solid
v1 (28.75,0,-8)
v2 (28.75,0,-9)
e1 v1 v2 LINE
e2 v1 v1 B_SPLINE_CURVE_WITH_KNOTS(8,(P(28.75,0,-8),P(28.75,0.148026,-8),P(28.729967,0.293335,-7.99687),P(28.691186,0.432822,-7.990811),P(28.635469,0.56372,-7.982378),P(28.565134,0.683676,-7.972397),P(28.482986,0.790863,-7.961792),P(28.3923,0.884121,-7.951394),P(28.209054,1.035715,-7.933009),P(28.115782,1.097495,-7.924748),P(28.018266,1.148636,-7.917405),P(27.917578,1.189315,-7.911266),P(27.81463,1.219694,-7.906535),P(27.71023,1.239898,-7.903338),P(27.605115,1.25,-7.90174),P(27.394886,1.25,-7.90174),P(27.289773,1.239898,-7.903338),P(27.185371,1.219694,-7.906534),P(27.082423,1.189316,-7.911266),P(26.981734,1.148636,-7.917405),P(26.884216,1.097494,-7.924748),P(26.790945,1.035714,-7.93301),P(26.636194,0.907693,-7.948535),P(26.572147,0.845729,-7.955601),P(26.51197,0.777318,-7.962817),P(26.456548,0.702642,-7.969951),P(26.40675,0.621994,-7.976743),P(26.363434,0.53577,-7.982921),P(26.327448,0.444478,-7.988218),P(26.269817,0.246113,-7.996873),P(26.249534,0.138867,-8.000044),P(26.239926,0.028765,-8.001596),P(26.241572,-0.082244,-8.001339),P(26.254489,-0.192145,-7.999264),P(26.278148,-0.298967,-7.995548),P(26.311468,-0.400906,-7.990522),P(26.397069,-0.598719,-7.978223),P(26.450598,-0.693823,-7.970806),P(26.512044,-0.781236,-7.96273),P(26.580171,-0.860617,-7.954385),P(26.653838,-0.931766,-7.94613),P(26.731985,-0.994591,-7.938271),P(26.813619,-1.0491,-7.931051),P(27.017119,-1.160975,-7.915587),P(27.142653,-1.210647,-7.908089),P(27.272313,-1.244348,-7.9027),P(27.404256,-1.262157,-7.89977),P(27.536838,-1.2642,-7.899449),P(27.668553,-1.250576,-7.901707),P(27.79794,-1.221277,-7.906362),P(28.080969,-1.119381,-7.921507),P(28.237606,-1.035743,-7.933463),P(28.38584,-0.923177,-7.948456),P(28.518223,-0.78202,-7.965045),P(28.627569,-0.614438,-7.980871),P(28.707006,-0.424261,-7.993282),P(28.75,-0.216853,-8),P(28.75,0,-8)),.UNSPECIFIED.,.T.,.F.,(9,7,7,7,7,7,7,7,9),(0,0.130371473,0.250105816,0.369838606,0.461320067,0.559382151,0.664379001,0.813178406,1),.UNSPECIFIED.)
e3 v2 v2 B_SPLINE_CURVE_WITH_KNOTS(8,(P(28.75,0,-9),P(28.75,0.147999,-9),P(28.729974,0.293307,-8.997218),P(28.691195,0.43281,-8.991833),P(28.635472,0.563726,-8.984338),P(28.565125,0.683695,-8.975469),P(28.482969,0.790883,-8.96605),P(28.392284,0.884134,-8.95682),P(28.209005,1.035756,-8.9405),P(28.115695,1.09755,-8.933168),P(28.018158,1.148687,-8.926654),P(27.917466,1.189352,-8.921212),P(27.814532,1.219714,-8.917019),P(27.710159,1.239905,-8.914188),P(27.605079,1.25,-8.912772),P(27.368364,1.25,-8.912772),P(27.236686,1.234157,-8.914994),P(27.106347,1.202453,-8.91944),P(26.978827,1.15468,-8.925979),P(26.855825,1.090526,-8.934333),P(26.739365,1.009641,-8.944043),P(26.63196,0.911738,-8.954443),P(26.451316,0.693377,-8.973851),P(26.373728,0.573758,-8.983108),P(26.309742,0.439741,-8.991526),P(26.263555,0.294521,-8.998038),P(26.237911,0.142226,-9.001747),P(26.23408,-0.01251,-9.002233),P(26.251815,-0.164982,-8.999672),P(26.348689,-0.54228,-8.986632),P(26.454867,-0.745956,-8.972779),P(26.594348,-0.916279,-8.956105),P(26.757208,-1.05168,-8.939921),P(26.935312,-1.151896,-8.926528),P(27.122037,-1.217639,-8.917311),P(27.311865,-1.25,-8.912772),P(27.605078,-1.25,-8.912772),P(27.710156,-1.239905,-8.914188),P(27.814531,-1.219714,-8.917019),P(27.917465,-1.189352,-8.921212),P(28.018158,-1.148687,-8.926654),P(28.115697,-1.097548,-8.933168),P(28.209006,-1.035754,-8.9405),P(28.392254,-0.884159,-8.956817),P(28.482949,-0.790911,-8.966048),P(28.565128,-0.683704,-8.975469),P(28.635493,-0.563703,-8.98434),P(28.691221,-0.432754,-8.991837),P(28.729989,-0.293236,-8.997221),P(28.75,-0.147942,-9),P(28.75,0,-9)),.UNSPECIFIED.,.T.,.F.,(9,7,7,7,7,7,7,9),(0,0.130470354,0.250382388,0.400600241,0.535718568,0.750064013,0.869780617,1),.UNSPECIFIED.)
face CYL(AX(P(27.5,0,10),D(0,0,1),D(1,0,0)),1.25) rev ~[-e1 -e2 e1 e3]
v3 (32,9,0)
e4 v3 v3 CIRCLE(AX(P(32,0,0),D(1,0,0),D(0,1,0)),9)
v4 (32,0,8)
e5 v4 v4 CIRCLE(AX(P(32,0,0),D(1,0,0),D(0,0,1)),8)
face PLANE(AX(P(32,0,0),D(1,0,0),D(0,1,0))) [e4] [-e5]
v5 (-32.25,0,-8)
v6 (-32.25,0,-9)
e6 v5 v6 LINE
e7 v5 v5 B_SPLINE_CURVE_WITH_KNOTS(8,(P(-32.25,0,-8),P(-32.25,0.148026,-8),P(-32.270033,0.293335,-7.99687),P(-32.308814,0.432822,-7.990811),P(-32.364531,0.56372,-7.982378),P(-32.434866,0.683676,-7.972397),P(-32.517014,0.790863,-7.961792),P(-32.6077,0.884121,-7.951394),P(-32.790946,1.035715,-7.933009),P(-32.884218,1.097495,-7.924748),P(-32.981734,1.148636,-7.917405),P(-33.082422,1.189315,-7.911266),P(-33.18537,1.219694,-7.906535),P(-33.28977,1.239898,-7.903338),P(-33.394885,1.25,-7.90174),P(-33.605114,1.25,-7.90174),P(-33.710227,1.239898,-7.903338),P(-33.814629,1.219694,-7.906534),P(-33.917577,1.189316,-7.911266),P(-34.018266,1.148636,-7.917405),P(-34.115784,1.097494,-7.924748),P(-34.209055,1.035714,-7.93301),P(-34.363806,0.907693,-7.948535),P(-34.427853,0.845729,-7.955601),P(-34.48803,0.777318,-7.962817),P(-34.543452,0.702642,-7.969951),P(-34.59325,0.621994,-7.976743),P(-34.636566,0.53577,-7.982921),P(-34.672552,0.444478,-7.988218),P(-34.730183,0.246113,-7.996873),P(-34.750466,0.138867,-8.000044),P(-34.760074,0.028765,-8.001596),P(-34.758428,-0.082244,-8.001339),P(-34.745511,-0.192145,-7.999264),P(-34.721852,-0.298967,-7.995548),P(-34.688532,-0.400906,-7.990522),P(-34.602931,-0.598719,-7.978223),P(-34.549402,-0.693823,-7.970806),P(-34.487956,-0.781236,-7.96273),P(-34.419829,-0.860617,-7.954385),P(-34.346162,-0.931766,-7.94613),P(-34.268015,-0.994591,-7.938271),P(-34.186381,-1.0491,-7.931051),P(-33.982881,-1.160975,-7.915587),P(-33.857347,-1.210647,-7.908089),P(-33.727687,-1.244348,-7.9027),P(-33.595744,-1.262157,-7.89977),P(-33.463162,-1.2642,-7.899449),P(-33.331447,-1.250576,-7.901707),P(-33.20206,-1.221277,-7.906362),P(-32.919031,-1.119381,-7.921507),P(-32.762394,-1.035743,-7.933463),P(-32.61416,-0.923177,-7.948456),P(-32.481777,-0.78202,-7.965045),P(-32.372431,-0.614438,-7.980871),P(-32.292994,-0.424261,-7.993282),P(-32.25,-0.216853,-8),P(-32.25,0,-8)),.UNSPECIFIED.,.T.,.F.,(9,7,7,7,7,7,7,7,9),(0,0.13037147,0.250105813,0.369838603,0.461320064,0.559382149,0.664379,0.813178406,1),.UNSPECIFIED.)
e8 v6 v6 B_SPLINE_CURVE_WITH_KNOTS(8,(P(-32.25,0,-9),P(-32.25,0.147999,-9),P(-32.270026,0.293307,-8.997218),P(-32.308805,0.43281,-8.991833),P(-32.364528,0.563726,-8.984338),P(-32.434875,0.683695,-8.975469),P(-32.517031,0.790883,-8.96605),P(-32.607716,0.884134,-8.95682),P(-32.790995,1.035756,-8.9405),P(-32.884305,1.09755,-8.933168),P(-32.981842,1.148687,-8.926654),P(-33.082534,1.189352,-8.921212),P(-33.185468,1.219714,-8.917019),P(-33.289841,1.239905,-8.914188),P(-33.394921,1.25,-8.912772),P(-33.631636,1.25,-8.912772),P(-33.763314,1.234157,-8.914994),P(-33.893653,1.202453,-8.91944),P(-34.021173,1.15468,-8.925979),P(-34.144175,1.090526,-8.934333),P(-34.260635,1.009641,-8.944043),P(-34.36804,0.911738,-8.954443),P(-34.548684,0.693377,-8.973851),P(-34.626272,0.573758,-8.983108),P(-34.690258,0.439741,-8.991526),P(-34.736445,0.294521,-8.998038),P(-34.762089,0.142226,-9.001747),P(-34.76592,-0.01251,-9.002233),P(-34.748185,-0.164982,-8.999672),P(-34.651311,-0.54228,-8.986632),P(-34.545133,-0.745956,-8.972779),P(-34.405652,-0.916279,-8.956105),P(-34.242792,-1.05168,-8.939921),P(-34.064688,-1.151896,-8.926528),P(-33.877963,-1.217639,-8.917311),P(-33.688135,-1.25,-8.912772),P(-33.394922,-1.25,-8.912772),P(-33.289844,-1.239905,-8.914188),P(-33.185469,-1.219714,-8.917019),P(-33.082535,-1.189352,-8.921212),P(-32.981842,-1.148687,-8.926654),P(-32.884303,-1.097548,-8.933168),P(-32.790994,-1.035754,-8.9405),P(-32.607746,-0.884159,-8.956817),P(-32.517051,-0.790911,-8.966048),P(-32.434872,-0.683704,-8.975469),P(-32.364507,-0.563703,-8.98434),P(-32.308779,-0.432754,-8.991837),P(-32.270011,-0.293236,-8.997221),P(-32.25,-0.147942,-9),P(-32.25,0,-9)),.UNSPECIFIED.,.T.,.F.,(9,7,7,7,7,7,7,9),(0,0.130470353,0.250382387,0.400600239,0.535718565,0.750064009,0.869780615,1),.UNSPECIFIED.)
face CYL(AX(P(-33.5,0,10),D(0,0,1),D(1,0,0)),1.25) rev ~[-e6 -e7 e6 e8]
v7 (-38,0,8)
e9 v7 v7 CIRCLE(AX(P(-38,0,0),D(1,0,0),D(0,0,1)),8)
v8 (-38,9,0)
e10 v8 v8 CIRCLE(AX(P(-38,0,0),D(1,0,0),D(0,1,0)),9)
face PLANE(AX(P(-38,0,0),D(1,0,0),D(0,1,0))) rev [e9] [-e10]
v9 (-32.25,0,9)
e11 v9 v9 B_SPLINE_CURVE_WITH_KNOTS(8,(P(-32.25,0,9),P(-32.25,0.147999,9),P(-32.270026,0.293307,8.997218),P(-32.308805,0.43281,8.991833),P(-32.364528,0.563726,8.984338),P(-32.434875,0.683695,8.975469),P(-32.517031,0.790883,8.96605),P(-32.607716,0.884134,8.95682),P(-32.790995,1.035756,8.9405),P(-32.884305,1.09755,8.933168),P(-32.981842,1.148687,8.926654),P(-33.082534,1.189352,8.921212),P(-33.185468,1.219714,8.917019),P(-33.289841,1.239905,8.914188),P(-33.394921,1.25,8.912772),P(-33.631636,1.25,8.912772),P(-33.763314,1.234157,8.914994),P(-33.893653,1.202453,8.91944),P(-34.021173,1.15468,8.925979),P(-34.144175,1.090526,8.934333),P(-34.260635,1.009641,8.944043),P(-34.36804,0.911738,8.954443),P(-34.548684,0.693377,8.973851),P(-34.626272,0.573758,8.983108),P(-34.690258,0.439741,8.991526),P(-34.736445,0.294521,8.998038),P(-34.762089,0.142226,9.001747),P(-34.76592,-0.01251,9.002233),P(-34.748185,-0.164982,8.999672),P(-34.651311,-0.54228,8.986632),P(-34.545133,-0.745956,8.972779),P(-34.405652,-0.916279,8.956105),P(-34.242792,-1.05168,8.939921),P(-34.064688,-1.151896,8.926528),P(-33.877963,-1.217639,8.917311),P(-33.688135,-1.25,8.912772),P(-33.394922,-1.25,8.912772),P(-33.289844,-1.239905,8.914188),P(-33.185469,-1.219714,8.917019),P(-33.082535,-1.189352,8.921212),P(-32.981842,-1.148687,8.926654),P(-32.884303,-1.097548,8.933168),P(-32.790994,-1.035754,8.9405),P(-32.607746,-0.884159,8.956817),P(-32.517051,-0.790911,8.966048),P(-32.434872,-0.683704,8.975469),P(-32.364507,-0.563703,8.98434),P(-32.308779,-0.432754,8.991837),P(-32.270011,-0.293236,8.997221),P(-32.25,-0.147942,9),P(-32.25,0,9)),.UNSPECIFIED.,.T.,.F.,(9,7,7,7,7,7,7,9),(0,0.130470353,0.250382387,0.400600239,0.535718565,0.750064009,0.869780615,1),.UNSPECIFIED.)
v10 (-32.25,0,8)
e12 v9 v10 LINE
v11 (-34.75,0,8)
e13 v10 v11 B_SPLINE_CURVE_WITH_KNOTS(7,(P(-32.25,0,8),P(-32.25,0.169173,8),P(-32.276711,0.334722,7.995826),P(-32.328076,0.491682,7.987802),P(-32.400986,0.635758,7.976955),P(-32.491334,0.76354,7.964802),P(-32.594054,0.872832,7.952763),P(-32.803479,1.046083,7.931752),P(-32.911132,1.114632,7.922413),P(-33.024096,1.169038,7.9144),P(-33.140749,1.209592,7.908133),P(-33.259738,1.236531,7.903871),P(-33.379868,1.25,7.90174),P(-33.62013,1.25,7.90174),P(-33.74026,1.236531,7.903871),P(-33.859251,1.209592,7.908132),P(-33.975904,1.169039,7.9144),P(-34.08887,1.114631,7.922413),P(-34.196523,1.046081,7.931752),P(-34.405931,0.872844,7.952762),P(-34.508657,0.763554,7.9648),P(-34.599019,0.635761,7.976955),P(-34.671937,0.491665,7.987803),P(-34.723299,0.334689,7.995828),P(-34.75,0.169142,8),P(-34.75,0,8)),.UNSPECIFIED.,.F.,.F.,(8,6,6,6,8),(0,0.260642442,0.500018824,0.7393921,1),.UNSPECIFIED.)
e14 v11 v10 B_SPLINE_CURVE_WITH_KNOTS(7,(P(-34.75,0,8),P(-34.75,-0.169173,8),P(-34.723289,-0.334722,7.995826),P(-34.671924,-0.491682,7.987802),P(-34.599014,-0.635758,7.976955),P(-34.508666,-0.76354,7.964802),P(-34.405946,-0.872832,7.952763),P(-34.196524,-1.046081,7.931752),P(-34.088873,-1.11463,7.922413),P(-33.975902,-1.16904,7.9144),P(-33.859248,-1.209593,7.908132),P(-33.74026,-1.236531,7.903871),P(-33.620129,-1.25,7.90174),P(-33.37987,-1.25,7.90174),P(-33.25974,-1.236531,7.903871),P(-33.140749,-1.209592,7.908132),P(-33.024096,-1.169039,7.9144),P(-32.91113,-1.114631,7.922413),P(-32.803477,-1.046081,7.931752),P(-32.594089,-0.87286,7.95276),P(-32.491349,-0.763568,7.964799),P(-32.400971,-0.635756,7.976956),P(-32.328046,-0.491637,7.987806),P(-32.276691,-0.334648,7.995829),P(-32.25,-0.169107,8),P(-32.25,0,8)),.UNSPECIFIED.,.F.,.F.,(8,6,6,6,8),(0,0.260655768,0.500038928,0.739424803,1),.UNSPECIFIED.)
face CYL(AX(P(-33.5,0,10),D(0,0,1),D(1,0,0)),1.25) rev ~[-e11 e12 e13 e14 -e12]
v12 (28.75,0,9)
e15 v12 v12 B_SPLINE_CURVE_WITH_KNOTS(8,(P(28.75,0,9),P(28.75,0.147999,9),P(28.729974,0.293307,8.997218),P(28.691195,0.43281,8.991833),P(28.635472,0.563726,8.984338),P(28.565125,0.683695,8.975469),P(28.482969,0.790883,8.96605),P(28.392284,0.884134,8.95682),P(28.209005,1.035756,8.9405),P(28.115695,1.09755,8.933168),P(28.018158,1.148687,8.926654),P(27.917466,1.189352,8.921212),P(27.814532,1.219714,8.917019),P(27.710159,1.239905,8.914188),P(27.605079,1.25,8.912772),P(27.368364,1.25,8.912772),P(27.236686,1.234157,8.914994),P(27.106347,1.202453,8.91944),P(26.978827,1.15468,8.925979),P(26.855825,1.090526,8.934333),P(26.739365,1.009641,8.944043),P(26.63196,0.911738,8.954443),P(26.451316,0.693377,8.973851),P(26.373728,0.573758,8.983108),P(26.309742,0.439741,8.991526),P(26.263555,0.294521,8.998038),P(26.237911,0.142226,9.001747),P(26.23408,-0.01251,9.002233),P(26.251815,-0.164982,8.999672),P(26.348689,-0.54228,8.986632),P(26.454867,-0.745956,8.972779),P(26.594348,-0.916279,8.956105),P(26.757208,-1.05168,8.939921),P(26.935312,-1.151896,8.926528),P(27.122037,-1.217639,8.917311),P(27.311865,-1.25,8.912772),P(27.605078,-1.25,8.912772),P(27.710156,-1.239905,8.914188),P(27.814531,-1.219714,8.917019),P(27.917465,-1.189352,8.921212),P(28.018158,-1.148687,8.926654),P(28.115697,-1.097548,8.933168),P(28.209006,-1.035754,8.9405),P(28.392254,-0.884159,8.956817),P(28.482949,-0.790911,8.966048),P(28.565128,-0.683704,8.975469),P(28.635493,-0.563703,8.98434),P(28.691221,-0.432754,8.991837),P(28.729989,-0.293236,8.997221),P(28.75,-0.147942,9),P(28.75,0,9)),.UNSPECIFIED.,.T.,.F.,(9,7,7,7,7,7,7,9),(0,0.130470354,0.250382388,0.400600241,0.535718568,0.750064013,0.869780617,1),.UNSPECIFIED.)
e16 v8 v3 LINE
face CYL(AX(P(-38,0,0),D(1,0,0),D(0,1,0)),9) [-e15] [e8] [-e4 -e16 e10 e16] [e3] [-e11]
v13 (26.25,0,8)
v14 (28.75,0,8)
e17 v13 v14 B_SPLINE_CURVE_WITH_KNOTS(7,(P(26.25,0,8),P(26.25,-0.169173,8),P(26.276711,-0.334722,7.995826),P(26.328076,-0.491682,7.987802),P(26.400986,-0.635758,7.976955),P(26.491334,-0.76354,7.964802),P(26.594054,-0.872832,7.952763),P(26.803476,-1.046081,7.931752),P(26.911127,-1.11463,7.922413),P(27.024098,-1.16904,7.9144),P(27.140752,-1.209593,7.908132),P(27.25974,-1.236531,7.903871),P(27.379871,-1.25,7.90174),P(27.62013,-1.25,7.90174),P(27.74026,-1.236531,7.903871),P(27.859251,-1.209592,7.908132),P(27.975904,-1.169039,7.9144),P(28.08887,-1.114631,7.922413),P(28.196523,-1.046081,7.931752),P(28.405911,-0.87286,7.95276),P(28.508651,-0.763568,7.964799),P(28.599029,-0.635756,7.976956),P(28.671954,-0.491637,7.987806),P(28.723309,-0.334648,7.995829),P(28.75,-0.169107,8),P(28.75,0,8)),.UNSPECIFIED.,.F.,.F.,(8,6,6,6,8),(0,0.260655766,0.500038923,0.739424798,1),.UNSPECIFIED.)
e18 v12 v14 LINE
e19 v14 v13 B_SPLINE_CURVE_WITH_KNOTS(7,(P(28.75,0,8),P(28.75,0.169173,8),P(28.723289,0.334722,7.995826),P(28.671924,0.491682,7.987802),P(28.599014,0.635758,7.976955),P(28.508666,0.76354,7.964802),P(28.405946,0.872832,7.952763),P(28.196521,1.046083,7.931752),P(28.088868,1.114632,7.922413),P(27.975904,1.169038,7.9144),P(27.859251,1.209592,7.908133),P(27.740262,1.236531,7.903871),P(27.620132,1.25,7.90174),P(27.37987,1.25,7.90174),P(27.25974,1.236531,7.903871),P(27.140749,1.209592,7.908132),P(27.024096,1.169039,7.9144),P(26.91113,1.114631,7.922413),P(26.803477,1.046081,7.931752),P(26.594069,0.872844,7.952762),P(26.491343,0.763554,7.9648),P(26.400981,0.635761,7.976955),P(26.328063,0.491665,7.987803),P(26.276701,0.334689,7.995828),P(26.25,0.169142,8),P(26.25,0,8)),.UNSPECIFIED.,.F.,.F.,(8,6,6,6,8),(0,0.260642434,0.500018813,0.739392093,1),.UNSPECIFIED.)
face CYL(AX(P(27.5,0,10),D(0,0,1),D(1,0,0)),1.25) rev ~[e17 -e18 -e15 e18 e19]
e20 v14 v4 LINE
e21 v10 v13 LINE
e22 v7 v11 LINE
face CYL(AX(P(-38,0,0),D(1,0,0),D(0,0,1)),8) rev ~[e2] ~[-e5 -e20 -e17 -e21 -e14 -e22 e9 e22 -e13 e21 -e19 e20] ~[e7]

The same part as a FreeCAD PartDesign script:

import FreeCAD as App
import Part
import Sketcher

doc = App.newDocument("Part")
body = doc.addObject("PartDesign::Body", "Body")

# Sketch on XY plane
sketch1 = doc.addObject("Sketcher::SketchObject", "Sketch")
body.addObject(sketch1)
sketch1.AttachmentSupport = (doc.XY_Plane, [""])
sketch1.MapMode = "FlatFace"
sketch1.addGeometry(Part.LineSegment(App.Vector(32, 9, 0), App.Vector(-38, 9, 0)), False)
sketch1.addGeometry(Part.LineSegment(App.Vector(-38, 9, 0), App.Vector(-38, 0, 0)), False)
sketch1.addGeometry(Part.LineSegment(App.Vector(-38, 0, 0), App.Vector(32, 0, 0)), False)
sketch1.addGeometry(Part.LineSegment(App.Vector(32, 0, 0), App.Vector(32, 9, 0)), False)
sketch1.addConstraint(Sketcher.Constraint("Coincident", 0, 2, 1, 1))
sketch1.addConstraint(Sketcher.Constraint("Coincident", 1, 2, 2, 1))
sketch1.addConstraint(Sketcher.Constraint("Coincident", 2, 2, 3, 1))
sketch1.addConstraint(Sketcher.Constraint("Coincident", 3, 2, 0, 1))
sketch1.addConstraint(Sketcher.Constraint("Horizontal", 0))
sketch1.addConstraint(Sketcher.Constraint("Vertical", 1))
sketch1.addConstraint(Sketcher.Constraint("Horizontal", 2))
sketch1.addConstraint(Sketcher.Constraint("Vertical", 3))
sketch1.addConstraint(Sketcher.Constraint("PointOnObject", 1, 2, -1))
sketch1.addConstraint(Sketcher.Constraint("DistanceX", 0, 2, 0, 1, 70.0))
sketch1.addConstraint(Sketcher.Constraint("DistanceY", 1, 2, 1, 1, 9.0))
sketch1.addConstraint(Sketcher.Constraint("DistanceX", 0, 2, -1, 1, 38.0))
revolution = doc.addObject("PartDesign::Revolution", "Revolution")
body.addObject(revolution)
revolution.Profile = sketch1
revolution.ReferenceAxis = (sketch1, ["H_Axis"])
revolution.Angle = 360

# Sketch on YZ plane
sketch2 = doc.addObject("Sketcher::SketchObject", "Sketch001")
body.addObject(sketch2)
sketch2.AttachmentSupport = (doc.YZ_Plane, [""])
sketch2.MapMode = "FlatFace"
sketch2.AttachmentOffset = App.Placement(App.Vector(0, 0, -38), App.Rotation())
sketch2.addGeometry(Part.Circle(App.Vector(0, 0, 0), App.Vector(0, 0, 1), 8), False)
sketch2.addConstraint(Sketcher.Constraint("Coincident", 0, 3, -1, 1))
sketch2.addConstraint(Sketcher.Constraint("Diameter", 0, 16.0))
doc.recompute()
hole = doc.addObject("PartDesign::Hole", "Hole")
body.addObject(hole)
hole.Profile = sketch2
hole.ThreadType = "None"
hole.Diameter = 16
hole.DepthType = "ThroughAll"
hole.Reversed = True

# Sketch on XY plane
sketch3 = doc.addObject("Sketcher::SketchObject", "Sketch002")
body.addObject(sketch3)
sketch3.AttachmentSupport = (doc.XY_Plane, [""])
sketch3.MapMode = "FlatFace"
sketch3.AttachmentOffset = App.Placement(App.Vector(0, 0, 10), App.Rotation())
sketch3.addGeometry(Part.Circle(App.Vector(-33.5, 0, 0), App.Vector(0, 0, 1), 1.2), False)
sketch3.addGeometry(Part.Circle(App.Vector(27.5, 0, 0), App.Vector(0, 0, 1), 1.2), False)
sketch3.addConstraint(Sketcher.Constraint("Equal", 0, 1))
sketch3.addConstraint(Sketcher.Constraint("PointOnObject", 0, 3, -1))
sketch3.addConstraint(Sketcher.Constraint("PointOnObject", 1, 3, -1))
sketch3.addConstraint(Sketcher.Constraint("Diameter", 0, 2.5))
sketch3.addConstraint(Sketcher.Constraint("DistanceX", 0, 3, 1, 3, 61.0))
sketch3.addConstraint(Sketcher.Constraint("DistanceX", 0, 3, -1, 1, 33.5))
pocket1 = doc.addObject("PartDesign::Pocket", "Pocket")
body.addObject(pocket1)
pocket1.Profile = sketch3
pocket1.Type = "ThroughAll"

doc.recompute()
